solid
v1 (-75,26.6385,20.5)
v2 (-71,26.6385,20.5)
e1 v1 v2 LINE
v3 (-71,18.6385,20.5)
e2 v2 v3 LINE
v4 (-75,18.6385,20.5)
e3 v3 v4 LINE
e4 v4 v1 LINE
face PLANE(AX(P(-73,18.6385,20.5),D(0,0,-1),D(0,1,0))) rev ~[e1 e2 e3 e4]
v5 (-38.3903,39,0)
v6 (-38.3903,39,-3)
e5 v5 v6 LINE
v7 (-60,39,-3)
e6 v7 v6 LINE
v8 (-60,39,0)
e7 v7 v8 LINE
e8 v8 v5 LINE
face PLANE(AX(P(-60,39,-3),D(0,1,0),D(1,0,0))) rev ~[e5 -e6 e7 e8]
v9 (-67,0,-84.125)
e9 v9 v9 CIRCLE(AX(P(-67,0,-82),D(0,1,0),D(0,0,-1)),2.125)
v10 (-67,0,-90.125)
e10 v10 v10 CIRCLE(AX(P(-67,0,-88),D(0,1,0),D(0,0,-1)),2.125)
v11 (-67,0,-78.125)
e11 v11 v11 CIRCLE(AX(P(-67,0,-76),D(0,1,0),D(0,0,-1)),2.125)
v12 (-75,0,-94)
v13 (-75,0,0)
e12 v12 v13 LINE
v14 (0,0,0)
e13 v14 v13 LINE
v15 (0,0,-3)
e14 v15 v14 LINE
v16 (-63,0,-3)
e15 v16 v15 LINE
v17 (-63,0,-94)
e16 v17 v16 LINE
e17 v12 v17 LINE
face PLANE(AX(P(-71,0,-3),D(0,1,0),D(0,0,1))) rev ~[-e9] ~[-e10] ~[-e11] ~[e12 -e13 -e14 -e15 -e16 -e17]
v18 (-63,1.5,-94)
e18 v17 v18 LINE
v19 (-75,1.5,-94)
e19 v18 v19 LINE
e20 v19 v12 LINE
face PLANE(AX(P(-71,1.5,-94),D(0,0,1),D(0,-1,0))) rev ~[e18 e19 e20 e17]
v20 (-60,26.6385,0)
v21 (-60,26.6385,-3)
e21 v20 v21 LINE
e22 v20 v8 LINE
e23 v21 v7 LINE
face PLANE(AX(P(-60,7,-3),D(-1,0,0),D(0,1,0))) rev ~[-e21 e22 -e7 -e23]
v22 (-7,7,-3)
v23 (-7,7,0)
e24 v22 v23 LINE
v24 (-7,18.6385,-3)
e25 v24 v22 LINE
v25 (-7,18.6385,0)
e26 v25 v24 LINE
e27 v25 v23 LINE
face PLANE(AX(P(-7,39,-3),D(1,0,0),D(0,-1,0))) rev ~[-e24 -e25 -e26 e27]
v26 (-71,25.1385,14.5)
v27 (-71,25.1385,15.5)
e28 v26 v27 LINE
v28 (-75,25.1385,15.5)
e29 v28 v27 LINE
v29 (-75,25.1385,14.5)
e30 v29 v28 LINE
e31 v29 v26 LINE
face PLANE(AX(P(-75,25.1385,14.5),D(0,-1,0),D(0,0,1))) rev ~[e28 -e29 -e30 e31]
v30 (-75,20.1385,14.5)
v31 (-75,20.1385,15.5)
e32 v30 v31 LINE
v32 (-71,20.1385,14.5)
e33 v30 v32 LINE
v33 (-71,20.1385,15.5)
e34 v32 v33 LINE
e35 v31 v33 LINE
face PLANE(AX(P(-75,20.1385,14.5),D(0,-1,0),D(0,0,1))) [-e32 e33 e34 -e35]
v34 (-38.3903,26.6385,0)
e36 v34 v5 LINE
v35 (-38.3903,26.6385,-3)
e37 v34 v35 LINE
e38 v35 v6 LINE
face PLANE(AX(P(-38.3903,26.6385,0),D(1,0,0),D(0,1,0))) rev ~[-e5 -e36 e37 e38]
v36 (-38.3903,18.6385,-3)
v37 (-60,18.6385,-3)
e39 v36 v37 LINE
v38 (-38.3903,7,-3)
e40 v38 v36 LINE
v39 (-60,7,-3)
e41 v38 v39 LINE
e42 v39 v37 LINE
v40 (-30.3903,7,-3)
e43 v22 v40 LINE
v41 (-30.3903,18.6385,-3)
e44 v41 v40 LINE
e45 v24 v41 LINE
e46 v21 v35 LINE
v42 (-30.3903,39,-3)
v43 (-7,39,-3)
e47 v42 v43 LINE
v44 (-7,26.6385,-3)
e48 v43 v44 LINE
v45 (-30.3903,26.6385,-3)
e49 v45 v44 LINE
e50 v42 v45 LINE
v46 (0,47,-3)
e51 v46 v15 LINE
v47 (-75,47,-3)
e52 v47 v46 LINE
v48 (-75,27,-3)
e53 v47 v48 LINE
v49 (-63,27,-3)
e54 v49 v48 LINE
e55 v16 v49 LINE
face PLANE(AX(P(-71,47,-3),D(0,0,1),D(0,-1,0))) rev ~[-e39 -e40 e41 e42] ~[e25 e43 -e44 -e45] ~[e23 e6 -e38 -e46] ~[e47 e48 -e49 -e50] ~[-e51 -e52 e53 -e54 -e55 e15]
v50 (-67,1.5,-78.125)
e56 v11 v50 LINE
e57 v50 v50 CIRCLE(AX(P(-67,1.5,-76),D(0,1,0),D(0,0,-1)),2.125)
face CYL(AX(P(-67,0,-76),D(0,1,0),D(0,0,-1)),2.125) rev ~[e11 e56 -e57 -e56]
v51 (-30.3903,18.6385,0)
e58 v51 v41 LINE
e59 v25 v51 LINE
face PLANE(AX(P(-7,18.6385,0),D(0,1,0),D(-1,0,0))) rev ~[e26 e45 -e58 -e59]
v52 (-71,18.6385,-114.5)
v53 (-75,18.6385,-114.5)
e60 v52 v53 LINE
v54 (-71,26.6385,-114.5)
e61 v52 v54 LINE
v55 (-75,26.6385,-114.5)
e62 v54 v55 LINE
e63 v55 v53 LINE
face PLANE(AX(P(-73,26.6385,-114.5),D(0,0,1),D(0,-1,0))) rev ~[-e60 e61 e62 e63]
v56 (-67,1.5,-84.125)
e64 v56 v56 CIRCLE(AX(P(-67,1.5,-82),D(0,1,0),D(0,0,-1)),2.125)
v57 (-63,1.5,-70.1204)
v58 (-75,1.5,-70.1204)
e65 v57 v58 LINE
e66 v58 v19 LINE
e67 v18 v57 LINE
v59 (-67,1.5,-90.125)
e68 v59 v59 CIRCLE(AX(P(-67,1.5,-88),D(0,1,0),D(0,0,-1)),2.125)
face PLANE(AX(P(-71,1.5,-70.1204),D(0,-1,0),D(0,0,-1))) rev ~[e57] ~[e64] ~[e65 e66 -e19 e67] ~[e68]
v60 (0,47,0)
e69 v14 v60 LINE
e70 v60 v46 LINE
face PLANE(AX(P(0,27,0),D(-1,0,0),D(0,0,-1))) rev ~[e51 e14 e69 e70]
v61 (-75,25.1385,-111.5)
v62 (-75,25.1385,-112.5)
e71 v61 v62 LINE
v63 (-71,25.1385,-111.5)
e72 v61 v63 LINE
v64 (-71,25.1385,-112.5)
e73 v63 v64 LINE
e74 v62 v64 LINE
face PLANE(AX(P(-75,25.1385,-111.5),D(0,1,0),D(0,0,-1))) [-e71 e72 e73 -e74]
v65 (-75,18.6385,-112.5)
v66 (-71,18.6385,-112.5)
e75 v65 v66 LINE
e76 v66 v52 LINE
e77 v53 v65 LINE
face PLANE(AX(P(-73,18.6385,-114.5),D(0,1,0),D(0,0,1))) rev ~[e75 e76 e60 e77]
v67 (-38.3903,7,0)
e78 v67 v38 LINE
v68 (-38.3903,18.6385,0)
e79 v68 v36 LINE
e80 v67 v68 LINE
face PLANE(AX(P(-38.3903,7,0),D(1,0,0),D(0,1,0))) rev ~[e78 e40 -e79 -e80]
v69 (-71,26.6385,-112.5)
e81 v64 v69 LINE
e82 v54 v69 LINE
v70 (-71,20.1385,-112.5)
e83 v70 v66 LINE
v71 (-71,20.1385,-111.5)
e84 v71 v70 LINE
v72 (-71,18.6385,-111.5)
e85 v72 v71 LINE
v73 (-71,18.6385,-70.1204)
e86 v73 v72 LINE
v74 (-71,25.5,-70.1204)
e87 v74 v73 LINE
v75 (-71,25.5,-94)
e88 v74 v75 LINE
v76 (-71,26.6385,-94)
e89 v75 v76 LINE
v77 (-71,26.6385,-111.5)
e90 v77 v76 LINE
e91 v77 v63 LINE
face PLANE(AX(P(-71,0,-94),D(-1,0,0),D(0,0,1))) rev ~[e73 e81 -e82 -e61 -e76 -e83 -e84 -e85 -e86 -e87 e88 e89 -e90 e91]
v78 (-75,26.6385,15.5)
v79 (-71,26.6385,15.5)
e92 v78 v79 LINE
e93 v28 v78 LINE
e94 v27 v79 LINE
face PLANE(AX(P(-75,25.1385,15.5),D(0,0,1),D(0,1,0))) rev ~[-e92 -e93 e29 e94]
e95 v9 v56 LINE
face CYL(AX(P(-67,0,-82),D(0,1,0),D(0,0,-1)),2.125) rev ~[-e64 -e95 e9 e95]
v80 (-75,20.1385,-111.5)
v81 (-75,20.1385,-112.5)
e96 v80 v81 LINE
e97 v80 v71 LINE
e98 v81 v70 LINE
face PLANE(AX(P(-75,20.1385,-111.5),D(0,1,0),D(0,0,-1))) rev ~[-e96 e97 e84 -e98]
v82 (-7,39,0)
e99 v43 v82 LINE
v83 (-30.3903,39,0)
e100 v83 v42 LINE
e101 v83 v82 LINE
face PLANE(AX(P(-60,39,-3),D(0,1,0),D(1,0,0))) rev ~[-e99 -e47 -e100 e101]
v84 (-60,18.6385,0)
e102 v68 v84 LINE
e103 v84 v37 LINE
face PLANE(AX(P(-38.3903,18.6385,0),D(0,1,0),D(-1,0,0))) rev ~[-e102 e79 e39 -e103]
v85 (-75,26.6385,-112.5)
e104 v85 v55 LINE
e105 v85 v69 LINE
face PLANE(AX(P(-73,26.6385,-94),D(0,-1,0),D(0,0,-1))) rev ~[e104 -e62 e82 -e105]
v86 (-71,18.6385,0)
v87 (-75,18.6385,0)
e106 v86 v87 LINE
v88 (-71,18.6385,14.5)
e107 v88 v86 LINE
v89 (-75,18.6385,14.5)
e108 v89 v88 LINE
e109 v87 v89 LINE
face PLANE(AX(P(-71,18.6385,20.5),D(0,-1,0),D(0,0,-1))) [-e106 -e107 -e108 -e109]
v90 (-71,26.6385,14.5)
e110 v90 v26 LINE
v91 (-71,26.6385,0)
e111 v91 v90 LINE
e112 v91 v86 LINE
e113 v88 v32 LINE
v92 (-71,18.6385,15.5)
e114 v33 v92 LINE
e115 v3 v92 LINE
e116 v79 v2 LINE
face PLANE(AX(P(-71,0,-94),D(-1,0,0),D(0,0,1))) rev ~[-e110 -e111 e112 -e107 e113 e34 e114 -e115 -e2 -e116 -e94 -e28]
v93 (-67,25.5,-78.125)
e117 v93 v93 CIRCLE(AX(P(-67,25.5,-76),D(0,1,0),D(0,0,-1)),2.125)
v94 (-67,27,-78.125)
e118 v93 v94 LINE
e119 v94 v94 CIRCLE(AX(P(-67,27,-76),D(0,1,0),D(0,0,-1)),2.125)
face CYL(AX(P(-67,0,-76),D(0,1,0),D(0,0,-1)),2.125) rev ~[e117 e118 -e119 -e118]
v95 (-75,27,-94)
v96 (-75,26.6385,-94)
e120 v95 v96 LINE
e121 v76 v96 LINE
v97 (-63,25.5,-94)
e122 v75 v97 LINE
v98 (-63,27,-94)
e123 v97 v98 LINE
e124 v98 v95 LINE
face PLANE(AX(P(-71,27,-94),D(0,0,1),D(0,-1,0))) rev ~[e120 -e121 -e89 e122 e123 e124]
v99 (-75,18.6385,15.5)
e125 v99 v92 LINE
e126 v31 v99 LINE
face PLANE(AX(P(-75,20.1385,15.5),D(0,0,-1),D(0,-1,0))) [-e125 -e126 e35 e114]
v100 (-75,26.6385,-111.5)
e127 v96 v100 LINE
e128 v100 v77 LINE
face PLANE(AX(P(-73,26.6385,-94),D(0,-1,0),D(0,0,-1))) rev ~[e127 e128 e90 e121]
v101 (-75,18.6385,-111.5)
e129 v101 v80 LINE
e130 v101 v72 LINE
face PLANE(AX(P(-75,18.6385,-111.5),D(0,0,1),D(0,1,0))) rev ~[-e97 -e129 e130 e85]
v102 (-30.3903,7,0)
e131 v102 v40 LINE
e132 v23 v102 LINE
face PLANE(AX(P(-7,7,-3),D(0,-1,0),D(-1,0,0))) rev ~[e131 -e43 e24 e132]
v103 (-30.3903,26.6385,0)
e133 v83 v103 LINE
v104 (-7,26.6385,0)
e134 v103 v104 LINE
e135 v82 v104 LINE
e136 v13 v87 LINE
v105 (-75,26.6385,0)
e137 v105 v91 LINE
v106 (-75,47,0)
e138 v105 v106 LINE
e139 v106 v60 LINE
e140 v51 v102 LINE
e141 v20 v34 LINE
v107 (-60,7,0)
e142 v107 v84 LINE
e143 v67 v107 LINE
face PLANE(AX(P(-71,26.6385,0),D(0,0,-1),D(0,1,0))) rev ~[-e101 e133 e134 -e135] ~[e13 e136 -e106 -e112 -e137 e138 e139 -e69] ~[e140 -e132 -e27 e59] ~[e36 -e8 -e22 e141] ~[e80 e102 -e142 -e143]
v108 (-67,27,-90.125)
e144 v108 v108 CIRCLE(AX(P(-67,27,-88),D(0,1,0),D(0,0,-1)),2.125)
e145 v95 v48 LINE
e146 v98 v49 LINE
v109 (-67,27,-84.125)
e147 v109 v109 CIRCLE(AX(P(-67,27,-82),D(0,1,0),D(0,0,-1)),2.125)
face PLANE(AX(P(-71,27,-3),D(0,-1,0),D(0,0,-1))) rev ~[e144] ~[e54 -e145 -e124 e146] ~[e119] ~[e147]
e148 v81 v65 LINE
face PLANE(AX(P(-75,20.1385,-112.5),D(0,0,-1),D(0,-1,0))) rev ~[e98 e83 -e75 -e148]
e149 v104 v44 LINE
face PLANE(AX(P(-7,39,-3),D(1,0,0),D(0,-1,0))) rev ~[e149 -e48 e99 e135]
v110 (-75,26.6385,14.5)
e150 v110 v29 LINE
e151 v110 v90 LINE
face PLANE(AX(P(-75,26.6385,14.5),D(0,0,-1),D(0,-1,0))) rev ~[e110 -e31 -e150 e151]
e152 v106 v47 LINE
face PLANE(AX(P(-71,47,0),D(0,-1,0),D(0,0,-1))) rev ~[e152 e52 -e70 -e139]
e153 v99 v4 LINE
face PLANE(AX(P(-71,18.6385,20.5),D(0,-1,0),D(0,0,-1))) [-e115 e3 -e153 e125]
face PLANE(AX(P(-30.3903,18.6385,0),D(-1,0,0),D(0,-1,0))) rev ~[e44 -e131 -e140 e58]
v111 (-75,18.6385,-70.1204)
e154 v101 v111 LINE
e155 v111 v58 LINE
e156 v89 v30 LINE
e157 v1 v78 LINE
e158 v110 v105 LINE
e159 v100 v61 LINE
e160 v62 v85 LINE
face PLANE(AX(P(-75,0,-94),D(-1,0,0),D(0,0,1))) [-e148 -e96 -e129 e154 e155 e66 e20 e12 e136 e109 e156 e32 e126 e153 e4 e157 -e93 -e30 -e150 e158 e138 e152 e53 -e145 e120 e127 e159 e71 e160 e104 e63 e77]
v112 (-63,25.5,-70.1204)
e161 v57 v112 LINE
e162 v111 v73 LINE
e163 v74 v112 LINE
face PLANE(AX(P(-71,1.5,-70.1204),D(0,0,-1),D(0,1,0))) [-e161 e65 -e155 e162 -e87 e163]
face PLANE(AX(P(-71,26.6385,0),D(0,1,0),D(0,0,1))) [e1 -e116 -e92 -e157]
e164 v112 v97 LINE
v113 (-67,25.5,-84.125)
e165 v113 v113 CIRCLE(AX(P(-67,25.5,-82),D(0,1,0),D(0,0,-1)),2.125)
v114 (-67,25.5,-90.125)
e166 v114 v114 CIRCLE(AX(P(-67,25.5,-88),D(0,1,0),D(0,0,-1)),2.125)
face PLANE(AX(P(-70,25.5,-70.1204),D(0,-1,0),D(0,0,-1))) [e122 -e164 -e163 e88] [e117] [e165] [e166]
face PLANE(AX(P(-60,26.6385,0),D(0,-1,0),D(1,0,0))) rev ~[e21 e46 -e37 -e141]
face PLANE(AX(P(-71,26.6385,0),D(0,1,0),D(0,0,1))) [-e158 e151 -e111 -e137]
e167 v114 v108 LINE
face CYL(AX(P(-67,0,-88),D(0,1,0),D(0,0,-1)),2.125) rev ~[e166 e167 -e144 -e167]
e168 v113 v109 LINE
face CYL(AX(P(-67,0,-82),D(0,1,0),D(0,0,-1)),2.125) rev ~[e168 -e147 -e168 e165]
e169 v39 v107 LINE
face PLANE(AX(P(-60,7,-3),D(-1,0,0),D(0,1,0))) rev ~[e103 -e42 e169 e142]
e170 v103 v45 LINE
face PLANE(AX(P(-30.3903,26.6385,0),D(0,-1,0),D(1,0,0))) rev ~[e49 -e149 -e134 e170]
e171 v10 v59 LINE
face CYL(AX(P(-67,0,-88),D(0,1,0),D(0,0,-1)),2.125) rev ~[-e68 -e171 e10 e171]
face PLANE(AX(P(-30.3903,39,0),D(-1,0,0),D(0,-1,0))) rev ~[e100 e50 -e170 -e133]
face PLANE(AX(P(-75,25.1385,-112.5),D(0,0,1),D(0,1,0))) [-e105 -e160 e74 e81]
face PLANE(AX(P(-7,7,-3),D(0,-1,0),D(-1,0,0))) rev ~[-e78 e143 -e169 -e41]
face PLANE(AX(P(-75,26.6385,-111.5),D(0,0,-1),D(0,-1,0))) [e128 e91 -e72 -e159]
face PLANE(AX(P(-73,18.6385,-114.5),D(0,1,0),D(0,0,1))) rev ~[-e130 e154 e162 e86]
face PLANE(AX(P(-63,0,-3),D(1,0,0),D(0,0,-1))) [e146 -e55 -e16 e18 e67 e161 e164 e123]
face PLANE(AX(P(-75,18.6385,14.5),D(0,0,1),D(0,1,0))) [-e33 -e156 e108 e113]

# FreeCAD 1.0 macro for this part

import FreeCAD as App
import Part
import Sketcher
from FreeCAD import Vector


def add_polygon(sketch, points):
    """Adds a closed chain of lines whose ends are joined by coincident constraints."""
    first, n = sketch.GeometryCount, len(points)
    for a, b in zip(points, points[1:] + points[:1]):
        sketch.addGeometry(Part.LineSegment(App.Vector(*a, 0), App.Vector(*b, 0)), False)
    for i in range(n):
        sketch.addConstraint(Sketcher.Constraint("Coincident", first + i, 2, first + (i + 1) % n, 1))

doc = App.newDocument("Part")
body = doc.addObject("PartDesign::Body", "Body")

sketch1 = doc.addObject("Sketcher::SketchObject", "Sketch")
body.addObject(sketch1)
sketch1.AttachmentSupport = (doc.XZ_Plane, [""])
sketch1.MapMode = "FlatFace"
add_polygon(sketch1, [(-70, 0), (0, 0), (0, -3), (-67, -3), (-67, -70), (-64, -70), (-64, -94), (-70, -94)])
sketch1.addConstraint(Sketcher.Constraint("Horizontal", 0))
sketch1.addConstraint(Sketcher.Constraint("Vertical", 1))
sketch1.addConstraint(Sketcher.Constraint("Horizontal", 2))
sketch1.addConstraint(Sketcher.Constraint("Vertical", 3))
sketch1.addConstraint(Sketcher.Constraint("Horizontal", 4))
sketch1.addConstraint(Sketcher.Constraint("Vertical", 5))
sketch1.addConstraint(Sketcher.Constraint("Horizontal", 6))
sketch1.addConstraint(Sketcher.Constraint("Vertical", 7))
sketch1.addConstraint(Sketcher.Constraint("Coincident", 0, 2, -1, 1))
sketch1.addConstraint(Sketcher.Constraint("Equal", 4, 1))
sketch1.addConstraint(Sketcher.Constraint("Equal", 2, 3))
sketch1.addConstraint(Sketcher.Constraint("DistanceX", 0, 1, 0, 2, 70.0))
sketch1.addConstraint(Sketcher.Constraint("DistanceX", 6, 2, 6, 1, 6.0))
sketch1.addConstraint(Sketcher.Constraint("DistanceY", 3, 2, -1, 1, 70.0))
sketch1.addConstraint(Sketcher.Constraint("DistanceY", 5, 2, 5, 1, 24.0))
pad1 = doc.addObject("PartDesign::Pad", "Pad")
body.addObject(pad1)
pad1.Profile = sketch1
pad1.Length = 27
pad1.Reversed = True

sketch2 = doc.addObject("Sketcher::SketchObject", "Sketch001")
body.addObject(sketch2)
sketch2.AttachmentSupport = (doc.XZ_Plane, [""])
sketch2.MapMode = "FlatFace"
sketch2.AttachmentOffset = App.Placement(Vector(0, 0, -27), App.Rotation())
add_polygon(sketch2, [(-70, -3), (-70, 0), (0, 0), (0, -3)])
sketch2.addConstraint(Sketcher.Constraint("Vertical", 0))
sketch2.addConstraint(Sketcher.Constraint("Horizontal", 1))
sketch2.addConstraint(Sketcher.Constraint("Vertical", 2))
sketch2.addConstraint(Sketcher.Constraint("Horizontal", 3))
sketch2.addConstraint(Sketcher.Constraint("Coincident", 1, 2, -1, 1))
sketch2.addConstraint(Sketcher.Constraint("DistanceX", 1, 1, 1, 2, 70.0))
sketch2.addConstraint(Sketcher.Constraint("DistanceY", 0, 1, 0, 2, 3.0))
pad2 = doc.addObject("PartDesign::Pad", "Pad001")
body.addObject(pad2)
pad2.Profile = sketch2
pad2.Length = 20
pad2.Reversed = True

sketch3 = doc.addObject("Sketcher::SketchObject", "Sketch002")
body.addObject(sketch3)
sketch3.AttachmentSupport = (doc.YZ_Plane, [""])
sketch3.MapMode = "FlatFace"
sketch3.AttachmentOffset = App.Placement(Vector(0, 0, -70), App.Rotation())
add_polygon(sketch3, [(26, -94), (2, -94), (2, -70), (26, -70)])
sketch3.addConstraint(Sketcher.Constraint("Horizontal", 0))
sketch3.addConstraint(Sketcher.Constraint("Vertical", 1))
sketch3.addConstraint(Sketcher.Constraint("Horizontal", 2))
sketch3.addConstraint(Sketcher.Constraint("Vertical", 3))
sketch3.addConstraint(Sketcher.Constraint("Equal", 2, 1))
sketch3.addConstraint(Sketcher.Constraint("DistanceX", 0, 2, 0, 1, 24.0))
sketch3.addConstraint(Sketcher.Constraint("DistanceX", -1, 1, 0, 2, 1.5))
sketch3.addConstraint(Sketcher.Constraint("DistanceY", 0, 2, -1, 1, 94.1204))
pocket1 = doc.addObject("PartDesign::Pocket", "Pocket")
body.addObject(pocket1)
pocket1.Profile = sketch3
pocket1.Length = 10
pocket1.Reversed = True

sketch4 = doc.addObject("Sketcher::SketchObject", "Sketch003")
body.addObject(sketch4)
sketch4.AttachmentSupport = (doc.XY_Plane, [""])
sketch4.MapMode = "FlatFace"
sketch4.AttachmentOffset = App.Placement(Vector(0, 0, -3), App.Rotation())
add_polygon(sketch4, [(-7, 39), (-7, 7), (-60, 7), (-60, 39)])
sketch4.addConstraint(Sketcher.Constraint("Vertical", 0))
sketch4.addConstraint(Sketcher.Constraint("Horizontal", 1))
sketch4.addConstraint(Sketcher.Constraint("Vertical", 2))
sketch4.addConstraint(Sketcher.Constraint("Horizontal", 3))
sketch4.addConstraint(Sketcher.Constraint("DistanceX", 1, 2, 1, 1, 53.0))
sketch4.addConstraint(Sketcher.Constraint("DistanceY", 0, 2, 0, 1, 32.0))
sketch4.addConstraint(Sketcher.Constraint("DistanceX", 0, 2, -1, 1, 7.0))
sketch4.addConstraint(Sketcher.Constraint("DistanceY", -1, 1, 0, 2, 7.0))
pocket2 = doc.addObject("PartDesign::Pocket", "Pocket001")
body.addObject(pocket2)
pocket2.Profile = sketch4
pocket2.Length = 10
pocket2.Reversed = True

sketch5 = doc.addObject("Sketcher::SketchObject", "Sketch004")
body.addObject(sketch5)
sketch5.AttachmentSupport = (doc.XY_Plane, [""])
sketch5.MapMode = "FlatFace"
add_polygon(sketch5, [(-38, 27), (-60, 27), (-60, 19), (-38, 19), (-38, 7), (-30, 7), (-30, 19), (-7, 19), (-7, 27), (-30, 27), (-30, 39), (-38, 39)])
sketch5.addConstraint(Sketcher.Constraint("Horizontal", 0))
sketch5.addConstraint(Sketcher.Constraint("Vertical", 1))
sketch5.addConstraint(Sketcher.Constraint("Horizontal", 2))
sketch5.addConstraint(Sketcher.Constraint("Vertical", 3))
sketch5.addConstraint(Sketcher.Constraint("Horizontal", 4))
sketch5.addConstraint(Sketcher.Constraint("Vertical", 5))
sketch5.addConstraint(Sketcher.Constraint("Horizontal", 6))
sketch5.addConstraint(Sketcher.Constraint("Vertical", 7))
sketch5.addConstraint(Sketcher.Constraint("Horizontal", 8))
sketch5.addConstraint(Sketcher.Constraint("Vertical", 9))
sketch5.addConstraint(Sketcher.Constraint("Horizontal", 10))
sketch5.addConstraint(Sketcher.Constraint("Vertical", 11))
sketch5.addConstraint(Sketcher.Constraint("Horizontal", 2, 2, 5, 2))
sketch5.addConstraint(Sketcher.Constraint("Horizontal", 0, 2, 7, 2))
sketch5.addConstraint(Sketcher.Constraint("Vertical", 5, 2, 8, 2))
sketch5.addConstraint(Sketcher.Constraint("Vertical", 3, 2, 10, 2))
sketch5.addConstraint(Sketcher.Constraint("Equal", 10, 1))
sketch5.addConstraint(Sketcher.Constraint("DistanceX", 4, 1, 4, 2, 8.0))
sketch5.addConstraint(Sketcher.Constraint("DistanceX", 0, 2, -1, 1, 60.0))
sketch5.addConstraint(Sketcher.Constraint("DistanceY", -1, 1, 3, 2, 7.0))
sketch5.addConstraint(Sketcher.Constraint("DistanceX", 6, 2, -1, 1, 7.0))
sketch5.addConstraint(Sketcher.Constraint("DistanceY", -1, 1, 9, 2, 39.0))
sketch5.addConstraint(Sketcher.Constraint("DistanceX", 0, 2, 0, 1, 21.6097))
sketch5.addConstraint(Sketcher.Constraint("DistanceY", 3, 2, 3, 1, 11.6385))
pad3 = doc.addObject("PartDesign::Pad", "Pad002")
body.addObject(pad3)
pad3.Profile = sketch5
pad3.Length = 3
pad3.Reversed = True

sketch6 = doc.addObject("Sketcher::SketchObject", "Sketch005")
body.addObject(sketch6)
sketch6.AttachmentSupport = (doc.XZ_Plane, [""])
sketch6.MapMode = "FlatFace"
sketch6.addGeometry(Part.Circle(Vector(-67, -88, 0), Vector(0, 0, 1), 2.1), False)
sketch6.addGeometry(Part.Circle(Vector(-67, -82, 0), Vector(0, 0, 1), 2.1), False)
sketch6.addGeometry(Part.Circle(Vector(-67, -76, 0), Vector(0, 0, 1), 2.1), False)
sketch6.addConstraint(Sketcher.Constraint("Equal", 0, 1))
sketch6.addConstraint(Sketcher.Constraint("Equal", 1, 2))
sketch6.addConstraint(Sketcher.Constraint("Vertical", 0, 3, 1, 3))
sketch6.addConstraint(Sketcher.Constraint("Vertical", 1, 3, 2, 3))
sketch6.addConstraint(Sketcher.Constraint("Diameter", 0, 4.25))
sketch6.addConstraint(Sketcher.Constraint("DistanceX", 0, 3, -1, 1, 67.0))
sketch6.addConstraint(Sketcher.Constraint("DistanceY", 0, 3, -1, 1, 88.0))
sketch6.addConstraint(Sketcher.Constraint("DistanceY", 1, 3, -1, 1, 82.0))
sketch6.addConstraint(Sketcher.Constraint("DistanceY", 2, 3, -1, 1, 76.0))
doc.recompute()
hole = doc.addObject("PartDesign::Hole", "Hole")
body.addObject(hole)
hole.Profile = sketch6
hole.ThreadType = "None"
hole.Diameter = 4.25
hole.DepthType = "ThroughAll"

sketch7 = doc.addObject("Sketcher::SketchObject", "Sketch006")
body.addObject(sketch7)
sketch7.AttachmentSupport = (doc.YZ_Plane, [""])
sketch7.MapMode = "FlatFace"
sketch7.AttachmentOffset = App.Placement(Vector(0, 0, -67), App.Rotation())
add_polygon(sketch7, [(0, -3), (0, -70), (27, -70), (27, -3)])
sketch7.addConstraint(Sketcher.Constraint("Vertical", 0))
sketch7.addConstraint(Sketcher.Constraint("Horizontal", 1))
sketch7.addConstraint(Sketcher.Constraint("Vertical", 2))
sketch7.addConstraint(Sketcher.Constraint("Horizontal", 3))
sketch7.addConstraint(Sketcher.Constraint("PointOnObject", 0, 2, -2))
sketch7.addConstraint(Sketcher.Constraint("DistanceX", 1, 1, 1, 2, 27.0))
sketch7.addConstraint(Sketcher.Constraint("DistanceY", 0, 2, 0, 1, 67.0))
sketch7.addConstraint(Sketcher.Constraint("DistanceY", 0, 2, -1, 1, 70.0))
pad4 = doc.addObject("PartDesign::Pad", "Pad003")
body.addObject(pad4)
pad4.Profile = sketch7
pad4.Length = 3

sketch8 = doc.addObject("Sketcher::SketchObject", "Sketch007")
body.addObject(sketch8)
sketch8.AttachmentSupport = (doc.YZ_Plane, [""])
sketch8.MapMode = "FlatFace"
sketch8.AttachmentOffset = App.Placement(Vector(0, 0, -64), App.Rotation())
add_polygon(sketch8, [(27, -3), (0, -3), (0, -94), (1.5, -94), (1.5, -70.1), (25.5, -70.1), (25.5, -94), (27, -94)])
sketch8.addConstraint(Sketcher.Constraint("Horizontal", 0))
sketch8.addConstraint(Sketcher.Constraint("Vertical", 1))
sketch8.addConstraint(Sketcher.Constraint("Horizontal", 2))
sketch8.addConstraint(Sketcher.Constraint("Vertical", 3))
sketch8.addConstraint(Sketcher.Constraint("Horizontal", 4))
sketch8.addConstraint(Sketcher.Constraint("Vertical", 5))
sketch8.addConstraint(Sketcher.Constraint("Horizontal", 6))
sketch8.addConstraint(Sketcher.Constraint("Vertical", 7))
sketch8.addConstraint(Sketcher.Constraint("PointOnObject", 0, 2, -2))
sketch8.addConstraint(Sketcher.Constraint("Horizontal", 2, 2, 5, 2))
sketch8.addConstraint(Sketcher.Constraint("Equal", 2, 6))
sketch8.addConstraint(Sketcher.Constraint("DistanceX", 0, 2, 0, 1, 27.0))
sketch8.addConstraint(Sketcher.Constraint("DistanceX", 4, 1, 4, 2, 24.0))
sketch8.addConstraint(Sketcher.Constraint("DistanceY", 1, 2, 1, 1, 91.0))
sketch8.addConstraint(Sketcher.Constraint("DistanceY", 0, 2, -1, 1, 3.0))
sketch8.addConstraint(Sketcher.Constraint("DistanceY", 3, 1, 3, 2, 23.8796))
pad5 = doc.addObject("PartDesign::Pad", "Pad004")
body.addObject(pad5)
pad5.Profile = sketch8
pad5.Length = 1

sketch9 = doc.addObject("Sketcher::SketchObject", "Sketch008")
body.addObject(sketch9)
sketch9.AttachmentSupport = (doc.YZ_Plane, [""])
sketch9.MapMode = "FlatFace"
sketch9.AttachmentOffset = App.Placement(Vector(0, 0, -70), App.Rotation())
add_polygon(sketch9, [(0, 0), (47, 0), (47, -3), (27, -3), (27, -94), (25.5, -94), (25.5, -70.1), (1.5, -70.1), (1.5, -94), (0, -94)])
sketch9.addConstraint(Sketcher.Constraint("Horizontal", 0))
sketch9.addConstraint(Sketcher.Constraint("Vertical", 1))
sketch9.addConstraint(Sketcher.Constraint("Horizontal", 2))
sketch9.addConstraint(Sketcher.Constraint("Vertical", 3))
sketch9.addConstraint(Sketcher.Constraint("Horizontal", 4))
sketch9.addConstraint(Sketcher.Constraint("Vertical", 5))
sketch9.addConstraint(Sketcher.Constraint("Horizontal", 6))
sketch9.addConstraint(Sketcher.Constraint("Vertical", 7))
sketch9.addConstraint(Sketcher.Constraint("Horizontal", 8))
sketch9.addConstraint(Sketcher.Constraint("Vertical", 9))
sketch9.addConstraint(Sketcher.Constraint("Coincident", 9, 2, -1, 1))
sketch9.addConstraint(Sketcher.Constraint("Horizontal", 4, 2, 7, 2))
sketch9.addConstraint(Sketcher.Constraint("Equal", 4, 8))
sketch9.addConstraint(Sketcher.Constraint("DistanceX", 0, 1, 0, 2, 47.0))
sketch9.addConstraint(Sketcher.Constraint("DistanceX", 2, 2, 2, 1, 20.0))
sketch9.addConstraint(Sketcher.Constraint("DistanceX", 6, 2, 6, 1, 24.0))
sketch9.addConstraint(Sketcher.Constraint("DistanceY", 1, 2, 1, 1, 3.0))
sketch9.addConstraint(Sketcher.Constraint("DistanceY", 3, 2, 3, 1, 91.0))
sketch9.addConstraint(Sketcher.Constraint("DistanceY", 5, 1, 5, 2, 23.8796))
pad6 = doc.addObject("PartDesign::Pad", "Pad005")
body.addObject(pad6)
pad6.Profile = sketch9
pad6.Length = 1
pad6.Reversed = True

sketch10 = doc.addObject("Sketcher::SketchObject", "Sketch009")
body.addObject(sketch10)
sketch10.AttachmentSupport = (doc.YZ_Plane, [""])
sketch10.MapMode = "FlatFace"
sketch10.AttachmentOffset = App.Placement(Vector(0, 0, -71), App.Rotation())
add_polygon(sketch10, [(27, 20), (27, -114), (19, -114), (19, 20)])
sketch10.addConstraint(Sketcher.Constraint("Vertical", 0))
sketch10.addConstraint(Sketcher.Constraint("Horizontal", 1))
sketch10.addConstraint(Sketcher.Constraint("Vertical", 2))
sketch10.addConstraint(Sketcher.Constraint("Horizontal", 3))
sketch10.addConstraint(Sketcher.Constraint("DistanceY", -1, 1, 2, 2, 20.5))
sketch10.addConstraint(Sketcher.Constraint("DistanceX", 1, 2, 1, 1, 8.0))
sketch10.addConstraint(Sketcher.Constraint("DistanceY", 0, 2, 0, 1, 135.0))
sketch10.addConstraint(Sketcher.Constraint("DistanceX", -1, 1, 0, 2, 26.6385))
pad7 = doc.addObject("PartDesign::Pad", "Pad006")
body.addObject(pad7)
pad7.Profile = sketch10
pad7.Length = 2
pad7.Reversed = True

sketch11 = doc.addObject("Sketcher::SketchObject", "Sketch010")
body.addObject(sketch11)
sketch11.AttachmentSupport = (doc.YZ_Plane, [""])
sketch11.MapMode = "FlatFace"
sketch11.AttachmentOffset = App.Placement(Vector(0, 0, -71), App.Rotation())
add_polygon(sketch11, [(0, 0), (18.6, 0), (18.6, -70.1), (1.5, -70.1), (1.5, -94), (0, -94)])
sketch11.addConstraint(Sketcher.Constraint("Horizontal", 0))
sketch11.addConstraint(Sketcher.Constraint("Vertical", 1))
sketch11.addConstraint(Sketcher.Constraint("Horizontal", 2))
sketch11.addConstraint(Sketcher.Constraint("Vertical", 3))
sketch11.addConstraint(Sketcher.Constraint("Horizontal", 4))
sketch11.addConstraint(Sketcher.Constraint("Vertical", 5))
sketch11.addConstraint(Sketcher.Constraint("Coincident", 5, 2, -1, 1))
sketch11.addConstraint(Sketcher.Constraint("DistanceY", 5, 1, 5, 2, 94.0))
sketch11.addConstraint(Sketcher.Constraint("DistanceX", 4, 2, 4, 1, 1.5))
sketch11.addConstraint(Sketcher.Constraint("DistanceX", 0, 1, 0, 2, 18.6385))
sketch11.addConstraint(Sketcher.Constraint("DistanceY", 1, 2, 1, 1, 70.1204))
pad8 = doc.addObject("PartDesign::Pad", "Pad007")
body.addObject(pad8)
pad8.Profile = sketch11
pad8.Length = 2
pad8.Reversed = True

sketch12 = doc.addObject("Sketcher::SketchObject", "Sketch011")
body.addObject(sketch12)
sketch12.AttachmentSupport = (doc.YZ_Plane, [""])
sketch12.MapMode = "FlatFace"
sketch12.AttachmentOffset = App.Placement(Vector(0, 0, -71), App.Rotation())
add_polygon(sketch12, [(47, -3), (27, -3), (27, -94), (26.64, -94), (26.64, 0), (47, 0)])
sketch12.addConstraint(Sketcher.Constraint("Horizontal", 0))
sketch12.addConstraint(Sketcher.Constraint("Vertical", 1))
sketch12.addConstraint(Sketcher.Constraint("Horizontal", 2))
sketch12.addConstraint(Sketcher.Constraint("Vertical", 3))
sketch12.addConstraint(Sketcher.Constraint("Horizontal", 4))
sketch12.addConstraint(Sketcher.Constraint("Vertical", 5))
sketch12.addConstraint(Sketcher.Constraint("PointOnObject", 3, 2, -1))
sketch12.addConstraint(Sketcher.Constraint("DistanceX", 0, 2, 0, 1, 20.0))
sketch12.addConstraint(Sketcher.Constraint("DistanceY", 1, 2, 1, 1, 91.0))
sketch12.addConstraint(Sketcher.Constraint("DistanceY", 3, 1, 3, 2, 94.0))
sketch12.addConstraint(Sketcher.Constraint("DistanceX", -1, 1, 0, 2, 27.0))
sketch12.addConstraint(Sketcher.Constraint("DistanceX", 2, 2, 2, 1, 0.3615))
pad9 = doc.addObject("PartDesign::Pad", "Pad008")
body.addObject(pad9)
pad9.Profile = sketch12
pad9.Length = 2
pad9.Reversed = True

sketch13 = doc.addObject("Sketcher::SketchObject", "Sketch012")
body.addObject(sketch13)
sketch13.AttachmentSupport = (doc.YZ_Plane, [""])
sketch13.MapMode = "FlatFace"
sketch13.AttachmentOffset = App.Placement(Vector(0, 0, -73), App.Rotation())
add_polygon(sketch13, [(0, -94), (0, 0), (18.64, 0), (18.64, 20.5), (26.64, 20.5), (26.64, 0), (47, 0), (47, -3), (27, -3), (27, -94), (26.64, -94), (26.64, -114.5), (18.64, -114.5), (18.64, -70.12), (1.5, -70.12), (1.5, -94)])
sketch13.addConstraint(Sketcher.Constraint("Vertical", 0))
sketch13.addConstraint(Sketcher.Constraint("Horizontal", 1))
sketch13.addConstraint(Sketcher.Constraint("Vertical", 2))
sketch13.addConstraint(Sketcher.Constraint("Horizontal", 3))
sketch13.addConstraint(Sketcher.Constraint("Vertical", 4))
sketch13.addConstraint(Sketcher.Constraint("Horizontal", 5))
sketch13.addConstraint(Sketcher.Constraint("Vertical", 6))
sketch13.addConstraint(Sketcher.Constraint("Horizontal", 7))
sketch13.addConstraint(Sketcher.Constraint("Vertical", 8))
sketch13.addConstraint(Sketcher.Constraint("Horizontal", 9))
sketch13.addConstraint(Sketcher.Constraint("Vertical", 10))
sketch13.addConstraint(Sketcher.Constraint("Horizontal", 11))
sketch13.addConstraint(Sketcher.Constraint("Vertical", 12))
sketch13.addConstraint(Sketcher.Constraint("Horizontal", 13))
sketch13.addConstraint(Sketcher.Constraint("Vertical", 14))
sketch13.addConstraint(Sketcher.Constraint("Horizontal", 15))
sketch13.addConstraint(Sketcher.Constraint("Coincident", 0, 2, -1, 1))
sketch13.addConstraint(Sketcher.Constraint("PointOnObject", 4, 2, -1))
sketch13.addConstraint(Sketcher.Constraint("Horizontal", 9, 2, 14, 2))
sketch13.addConstraint(Sketcher.Constraint("Vertical", 4, 2, 9, 2))
sketch13.addConstraint(Sketcher.Constraint("Vertical", 2, 2, 11, 2))
sketch13.addConstraint(Sketcher.Constraint("Equal", 4, 10))
sketch13.addConstraint(Sketcher.Constraint("DistanceX", 3, 1, 3, 2, 8.0))
sketch13.addConstraint(Sketcher.Constraint("DistanceX", 7, 2, 7, 1, 20.0))
sketch13.addConstraint(Sketcher.Constraint("DistanceY", 0, 1, 0, 2, 94.0))
sketch13.addConstraint(Sketcher.Constraint("DistanceY", 6, 2, 6, 1, 3.0))
sketch13.addConstraint(Sketcher.Constraint("DistanceX", 15, 2, 15, 1, 1.5))
sketch13.addConstraint(Sketcher.Constraint("DistanceY", 2, 1, 2, 2, 20.5))
sketch13.addConstraint(Sketcher.Constraint("DistanceX", -1, 1, 5, 2, 47.0))
sketch13.addConstraint(Sketcher.Constraint("DistanceX", 1, 1, 1, 2, 18.6385))
sketch13.addConstraint(Sketcher.Constraint("DistanceY", 12, 1, 12, 2, 44.3796))
pad10 = doc.addObject("PartDesign::Pad", "Pad009")
body.addObject(pad10)
pad10.Profile = sketch13
pad10.Length = 2
pad10.Reversed = True

sketch14 = doc.addObject("Sketcher::SketchObject", "Sketch013")
body.addObject(sketch14)
sketch14.AttachmentSupport = (doc.YZ_Plane, [""])
sketch14.MapMode = "FlatFace"
sketch14.AttachmentOffset = App.Placement(Vector(0, 0, -75), App.Rotation())
add_polygon(sketch14, [(25.1, -111.5), (26.6, -111.5), (26.6, -112.5), (25.1, -112.5)])
add_polygon(sketch14, [(18.6, -112.5), (18.6, -111.5), (20.1, -111.5), (20.1, -112.5)])
add_polygon(sketch14, [(26.6, 15.5), (26.6, 14.5), (25.1, 14.5), (25.1, 15.5)])
add_polygon(sketch14, [(20.1, 14.5), (18.6, 14.5), (18.6, 15.5), (20.1, 15.5)])
sketch14.addConstraint(Sketcher.Constraint("Horizontal", 0))
sketch14.addConstraint(Sketcher.Constraint("Vertical", 1))
sketch14.addConstraint(Sketcher.Constraint("Horizontal", 2))
sketch14.addConstraint(Sketcher.Constraint("Vertical", 3))
sketch14.addConstraint(Sketcher.Constraint("Vertical", 4))
sketch14.addConstraint(Sketcher.Constraint("Horizontal", 5))
sketch14.addConstraint(Sketcher.Constraint("Vertical", 6))
sketch14.addConstraint(Sketcher.Constraint("Horizontal", 7))
sketch14.addConstraint(Sketcher.Constraint("Vertical", 8))
sketch14.addConstraint(Sketcher.Constraint("Horizontal", 9))
sketch14.addConstraint(Sketcher.Constraint("Vertical", 10))
sketch14.addConstraint(Sketcher.Constraint("Horizontal", 11))
sketch14.addConstraint(Sketcher.Constraint("Horizontal", 12))
sketch14.addConstraint(Sketcher.Constraint("Vertical", 13))
sketch14.addConstraint(Sketcher.Constraint("Horizontal", 14))
sketch14.addConstraint(Sketcher.Constraint("Vertical", 15))
sketch14.addConstraint(Sketcher.Constraint("Horizontal", 3, 2, 4, 2))
sketch14.addConstraint(Sketcher.Constraint("Horizontal", 2, 2, 6, 2))
sketch14.addConstraint(Sketcher.Constraint("Horizontal", 9, 2, 12, 2))
sketch14.addConstraint(Sketcher.Constraint("Horizontal", 11, 2, 13, 2))
sketch14.addConstraint(Sketcher.Constraint("Vertical", 1, 2, 8, 2))
sketch14.addConstraint(Sketcher.Constraint("Vertical", 3, 2, 9, 2))
sketch14.addConstraint(Sketcher.Constraint("Vertical", 7, 2, 12, 2))
sketch14.addConstraint(Sketcher.Constraint("Vertical", 6, 2, 14, 2))
sketch14.addConstraint(Sketcher.Constraint("Equal", 2, 5))
sketch14.addConstraint(Sketcher.Constraint("Equal", 6, 8))
sketch14.addConstraint(Sketcher.Constraint("DistanceY", 1, 2, 1, 1, 1.0))
sketch14.addConstraint(Sketcher.Constraint("DistanceX", 0, 1, 0, 2, 1.5))
sketch14.addConstraint(Sketcher.Constraint("DistanceX", 4, 2, 0, 2, 8.0))
sketch14.addConstraint(Sketcher.Constraint("DistanceY", 0, 2, 8, 2, 126.0))
sketch14.addConstraint(Sketcher.Constraint("DistanceY", 0, 2, -1, 1, 111.5))
sketch14.addConstraint(Sketcher.Constraint("DistanceX", -1, 1, 0, 2, 26.6385))
pocket3 = doc.addObject("PartDesign::Pocket", "Pocket002")
body.addObject(pocket3)
pocket3.Profile = sketch14
pocket3.Type = "ThroughAll"
pocket3.Reversed = True

doc.recompute()
